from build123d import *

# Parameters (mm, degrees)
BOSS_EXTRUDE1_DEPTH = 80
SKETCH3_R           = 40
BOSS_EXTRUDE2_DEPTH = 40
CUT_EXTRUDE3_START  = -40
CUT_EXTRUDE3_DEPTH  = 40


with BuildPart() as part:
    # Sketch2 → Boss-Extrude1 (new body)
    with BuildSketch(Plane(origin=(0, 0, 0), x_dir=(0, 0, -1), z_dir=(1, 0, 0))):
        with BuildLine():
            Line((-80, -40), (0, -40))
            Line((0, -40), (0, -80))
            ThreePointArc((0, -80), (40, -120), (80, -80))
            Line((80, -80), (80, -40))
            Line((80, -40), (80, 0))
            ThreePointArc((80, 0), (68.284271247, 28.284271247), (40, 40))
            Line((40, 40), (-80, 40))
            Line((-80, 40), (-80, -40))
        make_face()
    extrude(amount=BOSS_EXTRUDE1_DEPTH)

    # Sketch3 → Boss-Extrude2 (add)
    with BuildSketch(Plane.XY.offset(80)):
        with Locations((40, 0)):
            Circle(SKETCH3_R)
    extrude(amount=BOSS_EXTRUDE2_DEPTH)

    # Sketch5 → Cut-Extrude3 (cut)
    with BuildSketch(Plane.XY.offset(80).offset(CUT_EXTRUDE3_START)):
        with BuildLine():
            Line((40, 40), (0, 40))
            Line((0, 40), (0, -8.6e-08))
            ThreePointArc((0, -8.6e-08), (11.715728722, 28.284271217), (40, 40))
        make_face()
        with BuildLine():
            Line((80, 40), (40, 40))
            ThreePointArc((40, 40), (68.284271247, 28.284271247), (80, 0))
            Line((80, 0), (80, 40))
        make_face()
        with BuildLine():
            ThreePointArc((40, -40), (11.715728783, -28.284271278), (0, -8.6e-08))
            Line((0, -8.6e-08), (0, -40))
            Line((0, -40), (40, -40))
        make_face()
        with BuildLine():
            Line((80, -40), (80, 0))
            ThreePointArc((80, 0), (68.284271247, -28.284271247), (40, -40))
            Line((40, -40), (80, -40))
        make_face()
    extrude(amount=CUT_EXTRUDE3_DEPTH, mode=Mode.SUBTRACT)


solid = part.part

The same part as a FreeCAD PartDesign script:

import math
import FreeCAD as App
import Part
import Sketcher
from FreeCAD import Vector

doc = App.newDocument("Part")
body = doc.addObject("PartDesign::Body", "Body")

# Sketch on YZ plane
sketch1 = body.newObject("Sketcher::SketchObject", "Sketch")
sketch1.AttachmentSupport = (doc.getObject("YZ_Plane"), [""])
sketch1.MapMode = "FlatFace"
sketch1.addGeometry([
    Part.LineSegment(Vector(-40, 80, 0), Vector(-40, 0, 0)),  # 0
    Part.LineSegment(Vector(-40, 0, 0), Vector(-80, 0, 0)),  # 1
    Part.ArcOfCircle(Part.Circle(Vector(-80, -40, 0), Vector(0, 0, 1), 40), math.radians(90), math.radians(270)),  # 2
    Part.LineSegment(Vector(-80, -80, 0), Vector(0, -80, 0)),  # 3
    Part.ArcOfCircle(Part.Circle(Vector(0, -40, 0), Vector(0, 0, 1), 40), math.radians(-90), math.radians(0)),  # 4
    Part.LineSegment(Vector(40, -40, 0), Vector(40, 80, 0)),  # 5
    Part.LineSegment(Vector(40, 80, 0), Vector(-40, 80, 0)),  # 6
], False)
sketch1.addConstraint([
    Sketcher.Constraint("Coincident", 0, 2, 1, 1),
    Sketcher.Constraint("Tangent", 1, 2, 2, 1),
    Sketcher.Constraint("Tangent", 2, 2, 3, 1),
    Sketcher.Constraint("Tangent", 3, 2, 4, 1),
    Sketcher.Constraint("Tangent", 4, 2, 5, 1),
    Sketcher.Constraint("Coincident", 5, 2, 6, 1),
    Sketcher.Constraint("Coincident", 6, 2, 0, 1),
    Sketcher.Constraint("Vertical", 0),
    Sketcher.Constraint("Horizontal", 1),
    Sketcher.Constraint("Horizontal", 3),
    Sketcher.Constraint("Vertical", 5),
    Sketcher.Constraint("Horizontal", 6),
    Sketcher.Constraint("Equal", 2, 4),
    Sketcher.Constraint("PointOnObject", 4, 3, -2),
    Sketcher.Constraint("PointOnObject", 0, 2, -1),
    Sketcher.Constraint("Equal", 3, 6),
    Sketcher.Constraint("Equal", 6, 0),
    Sketcher.Constraint("Radius", 2, 40.0),
    Sketcher.Constraint("DistanceX", 3, 1, 3, 2, 80.0),
])
pad1 = body.newObject("PartDesign::Pad", "Pad")
pad1.Profile = sketch1
pad1.Length = 80

# Sketch on XY plane
sketch2 = body.newObject("Sketcher::SketchObject", "Sketch001")
sketch2.AttachmentSupport = (doc.getObject("XY_Plane"), [""])
sketch2.MapMode = "FlatFace"
sketch2.AttachmentOffset = App.Placement(Vector(0, 0, 80), App.Rotation())
sketch2.addGeometry(Part.Circle(Vector(40, 0, 0), Vector(0, 0, 1), 40), False)
sketch2.addConstraint([
    Sketcher.Constraint("PointOnObject", 0, 3, -1),
    Sketcher.Constraint("Diameter", 0, 80.0),
    Sketcher.Constraint("DistanceX", -1, 1, 0, 3, 40.0),
])
pad2 = body.newObject("PartDesign::Pad", "Pad001")
pad2.Profile = sketch2
pad2.Length = 40

# Sketch on XY plane
sketch3 = body.newObject("Sketcher::SketchObject", "Sketch002")
sketch3.AttachmentSupport = (doc.getObject("XY_Plane"), [""])
sketch3.MapMode = "FlatFace"
sketch3.AttachmentOffset = App.Placement(Vector(0, 0, 40), App.Rotation())
sketch3.addGeometry([
    Part.LineSegment(Vector(40, 40, 0), Vector(0, 40, 0)),  # 0
    Part.LineSegment(Vector(0, 40, 0), Vector(0, 0, 0)),  # 1
    Part.ArcOfCircle(Part.Circle(Vector(40, 0, 0), Vector(0, 0, 1), 40), math.radians(90), math.radians(180)),  # 2
    Part.LineSegment(Vector(80, 40, 0), Vector(40, 40, 0)),  # 3
    Part.ArcOfCircle(Part.Circle(Vector(40, 0, 0), Vector(0, 0, 1), 40), math.radians(0), math.radians(90)),  # 4
    Part.LineSegment(Vector(80, 0, 0), Vector(80, 40, 0)),  # 5
    Part.ArcOfCircle(Part.Circle(Vector(40, 0, 0), Vector(0, 0, 1), 40), math.radians(-180), math.radians(-90)),  # 6
    Part.LineSegment(Vector(0, 0, 0), Vector(0, -40, 0)),  # 7
    Part.LineSegment(Vector(0, -40, 0), Vector(40, -40, 0)),  # 8
    Part.LineSegment(Vector(80, -40, 0), Vector(80, 0, 0)),  # 9
    Part.ArcOfCircle(Part.Circle(Vector(40, 0, 0), Vector(0, 0, 1), 40), math.radians(-90), math.radians(0)),  # 10
    Part.LineSegment(Vector(40, -40, 0), Vector(80, -40, 0)),  # 11
], False)
sketch3.addConstraint([
    Sketcher.Constraint("Coincident", 0, 2, 1, 1),
    Sketcher.Constraint("Tangent", 1, 2, 2, 2),
    Sketcher.Constraint("Tangent", 2, 1, 0, 1),
    Sketcher.Constraint("Tangent", 3, 2, 4, 2),
    Sketcher.Constraint("Tangent", 4, 1, 5, 1),
    Sketcher.Constraint("Coincident", 5, 2, 3, 1),
    Sketcher.Constraint("Tangent", 6, 1, 7, 1),
    Sketcher.Constraint("Coincident", 7, 2, 8, 1),
    Sketcher.Constraint("Tangent", 8, 2, 6, 2),
    Sketcher.Constraint("Tangent", 9, 2, 10, 2),
    Sketcher.Constraint("Tangent", 10, 1, 11, 1),
    Sketcher.Constraint("Coincident", 11, 2, 9, 1),
    Sketcher.Constraint("Horizontal", 0),
    Sketcher.Constraint("Vertical", 1),
    Sketcher.Constraint("Horizontal", 3),
    Sketcher.Constraint("Vertical", 5),
    Sketcher.Constraint("Vertical", 7),
    Sketcher.Constraint("Horizontal", 8),
    Sketcher.Constraint("Vertical", 9),
    Sketcher.Constraint("Horizontal", 11),
    Sketcher.Constraint("Coincident", 1, 2, -1, 1),
    Sketcher.Constraint("Coincident", 6, 1, -1, 1),
    Sketcher.Constraint("Coincident", 4, 3, 2, 3),
    Sketcher.Constraint("Coincident", 10, 3, 2, 3),
    Sketcher.Constraint("Coincident", 10, 1, 8, 2),
    Sketcher.Constraint("Equal", 2, 4),
    Sketcher.Constraint("Radius", 2, 40.0),
])
pocket1 = body.newObject("PartDesign::Pocket", "Pocket")
pocket1.Profile = sketch3
pocket1.Length = 40
pocket1.Reversed = True

doc.recompute()
